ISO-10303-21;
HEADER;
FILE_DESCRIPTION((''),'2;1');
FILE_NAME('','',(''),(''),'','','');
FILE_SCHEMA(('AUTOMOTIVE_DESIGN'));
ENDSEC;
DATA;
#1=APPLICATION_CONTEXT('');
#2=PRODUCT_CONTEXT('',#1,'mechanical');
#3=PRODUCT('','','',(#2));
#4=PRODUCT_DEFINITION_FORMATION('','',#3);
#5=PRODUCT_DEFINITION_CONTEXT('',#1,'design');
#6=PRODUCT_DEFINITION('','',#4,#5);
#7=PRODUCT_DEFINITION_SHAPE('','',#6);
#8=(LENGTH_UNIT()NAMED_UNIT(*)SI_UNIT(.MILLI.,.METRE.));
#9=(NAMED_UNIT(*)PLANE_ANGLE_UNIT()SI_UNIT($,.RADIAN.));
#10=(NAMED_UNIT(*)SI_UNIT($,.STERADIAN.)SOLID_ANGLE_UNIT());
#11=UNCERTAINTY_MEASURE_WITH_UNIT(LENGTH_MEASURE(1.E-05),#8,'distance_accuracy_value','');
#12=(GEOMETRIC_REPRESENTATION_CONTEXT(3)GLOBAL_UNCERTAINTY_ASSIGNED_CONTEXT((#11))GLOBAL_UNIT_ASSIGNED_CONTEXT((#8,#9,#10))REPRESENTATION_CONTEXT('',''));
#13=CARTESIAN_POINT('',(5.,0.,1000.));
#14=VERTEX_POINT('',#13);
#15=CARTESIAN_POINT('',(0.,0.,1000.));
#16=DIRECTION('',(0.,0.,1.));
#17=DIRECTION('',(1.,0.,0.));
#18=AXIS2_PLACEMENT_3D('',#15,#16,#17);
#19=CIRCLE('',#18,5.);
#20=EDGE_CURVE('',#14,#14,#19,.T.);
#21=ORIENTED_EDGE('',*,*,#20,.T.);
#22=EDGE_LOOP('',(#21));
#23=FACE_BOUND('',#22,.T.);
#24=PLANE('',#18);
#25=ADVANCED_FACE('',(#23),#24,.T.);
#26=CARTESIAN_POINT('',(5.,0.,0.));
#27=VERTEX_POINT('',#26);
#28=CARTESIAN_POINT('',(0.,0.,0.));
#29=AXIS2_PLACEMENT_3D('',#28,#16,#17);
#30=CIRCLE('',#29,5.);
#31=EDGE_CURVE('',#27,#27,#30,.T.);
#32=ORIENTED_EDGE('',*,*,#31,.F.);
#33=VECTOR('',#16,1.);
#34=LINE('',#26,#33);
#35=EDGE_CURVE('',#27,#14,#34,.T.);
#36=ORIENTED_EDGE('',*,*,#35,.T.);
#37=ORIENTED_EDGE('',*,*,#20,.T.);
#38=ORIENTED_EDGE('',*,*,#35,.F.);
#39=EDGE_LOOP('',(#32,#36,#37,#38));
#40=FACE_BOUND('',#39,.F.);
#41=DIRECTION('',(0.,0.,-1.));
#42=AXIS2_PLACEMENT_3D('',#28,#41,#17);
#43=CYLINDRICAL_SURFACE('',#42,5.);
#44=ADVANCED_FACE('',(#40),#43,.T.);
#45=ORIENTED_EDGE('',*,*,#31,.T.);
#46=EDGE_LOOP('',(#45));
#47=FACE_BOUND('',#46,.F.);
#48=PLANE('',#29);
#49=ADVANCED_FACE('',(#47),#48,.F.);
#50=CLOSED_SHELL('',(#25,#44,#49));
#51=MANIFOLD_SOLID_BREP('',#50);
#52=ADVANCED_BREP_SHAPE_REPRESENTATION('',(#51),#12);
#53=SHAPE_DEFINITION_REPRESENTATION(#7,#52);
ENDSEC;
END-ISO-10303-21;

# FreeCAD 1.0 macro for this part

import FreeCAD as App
import Part
import Sketcher
Q = App.Units.Quantity

doc = App.newDocument("Part")
body = doc.addObject("PartDesign::Body", "Body")

# Sketch on XY plane
sketch1 = body.newObject("Sketcher::SketchObject", "Sketch")
sketch1.AttachmentSupport = (doc.getObject("XY_Plane"), [""])
sketch1.MapMode = "FlatFace"
sketch1.addGeometry(Part.Circle(App.Vector(0, 0, 0), App.Vector(0, 0, 1), 5), False)
sketch1.addConstraint(Sketcher.Constraint("Coincident", 0, 3, -1, 1))
sketch1.addConstraint(Sketcher.Constraint("Diameter", 0, Q("10 mm")))
pad1 = body.newObject("PartDesign::Pad", "Pad")
pad1.Profile = sketch1
pad1.Length = 1000

doc.recompute()
